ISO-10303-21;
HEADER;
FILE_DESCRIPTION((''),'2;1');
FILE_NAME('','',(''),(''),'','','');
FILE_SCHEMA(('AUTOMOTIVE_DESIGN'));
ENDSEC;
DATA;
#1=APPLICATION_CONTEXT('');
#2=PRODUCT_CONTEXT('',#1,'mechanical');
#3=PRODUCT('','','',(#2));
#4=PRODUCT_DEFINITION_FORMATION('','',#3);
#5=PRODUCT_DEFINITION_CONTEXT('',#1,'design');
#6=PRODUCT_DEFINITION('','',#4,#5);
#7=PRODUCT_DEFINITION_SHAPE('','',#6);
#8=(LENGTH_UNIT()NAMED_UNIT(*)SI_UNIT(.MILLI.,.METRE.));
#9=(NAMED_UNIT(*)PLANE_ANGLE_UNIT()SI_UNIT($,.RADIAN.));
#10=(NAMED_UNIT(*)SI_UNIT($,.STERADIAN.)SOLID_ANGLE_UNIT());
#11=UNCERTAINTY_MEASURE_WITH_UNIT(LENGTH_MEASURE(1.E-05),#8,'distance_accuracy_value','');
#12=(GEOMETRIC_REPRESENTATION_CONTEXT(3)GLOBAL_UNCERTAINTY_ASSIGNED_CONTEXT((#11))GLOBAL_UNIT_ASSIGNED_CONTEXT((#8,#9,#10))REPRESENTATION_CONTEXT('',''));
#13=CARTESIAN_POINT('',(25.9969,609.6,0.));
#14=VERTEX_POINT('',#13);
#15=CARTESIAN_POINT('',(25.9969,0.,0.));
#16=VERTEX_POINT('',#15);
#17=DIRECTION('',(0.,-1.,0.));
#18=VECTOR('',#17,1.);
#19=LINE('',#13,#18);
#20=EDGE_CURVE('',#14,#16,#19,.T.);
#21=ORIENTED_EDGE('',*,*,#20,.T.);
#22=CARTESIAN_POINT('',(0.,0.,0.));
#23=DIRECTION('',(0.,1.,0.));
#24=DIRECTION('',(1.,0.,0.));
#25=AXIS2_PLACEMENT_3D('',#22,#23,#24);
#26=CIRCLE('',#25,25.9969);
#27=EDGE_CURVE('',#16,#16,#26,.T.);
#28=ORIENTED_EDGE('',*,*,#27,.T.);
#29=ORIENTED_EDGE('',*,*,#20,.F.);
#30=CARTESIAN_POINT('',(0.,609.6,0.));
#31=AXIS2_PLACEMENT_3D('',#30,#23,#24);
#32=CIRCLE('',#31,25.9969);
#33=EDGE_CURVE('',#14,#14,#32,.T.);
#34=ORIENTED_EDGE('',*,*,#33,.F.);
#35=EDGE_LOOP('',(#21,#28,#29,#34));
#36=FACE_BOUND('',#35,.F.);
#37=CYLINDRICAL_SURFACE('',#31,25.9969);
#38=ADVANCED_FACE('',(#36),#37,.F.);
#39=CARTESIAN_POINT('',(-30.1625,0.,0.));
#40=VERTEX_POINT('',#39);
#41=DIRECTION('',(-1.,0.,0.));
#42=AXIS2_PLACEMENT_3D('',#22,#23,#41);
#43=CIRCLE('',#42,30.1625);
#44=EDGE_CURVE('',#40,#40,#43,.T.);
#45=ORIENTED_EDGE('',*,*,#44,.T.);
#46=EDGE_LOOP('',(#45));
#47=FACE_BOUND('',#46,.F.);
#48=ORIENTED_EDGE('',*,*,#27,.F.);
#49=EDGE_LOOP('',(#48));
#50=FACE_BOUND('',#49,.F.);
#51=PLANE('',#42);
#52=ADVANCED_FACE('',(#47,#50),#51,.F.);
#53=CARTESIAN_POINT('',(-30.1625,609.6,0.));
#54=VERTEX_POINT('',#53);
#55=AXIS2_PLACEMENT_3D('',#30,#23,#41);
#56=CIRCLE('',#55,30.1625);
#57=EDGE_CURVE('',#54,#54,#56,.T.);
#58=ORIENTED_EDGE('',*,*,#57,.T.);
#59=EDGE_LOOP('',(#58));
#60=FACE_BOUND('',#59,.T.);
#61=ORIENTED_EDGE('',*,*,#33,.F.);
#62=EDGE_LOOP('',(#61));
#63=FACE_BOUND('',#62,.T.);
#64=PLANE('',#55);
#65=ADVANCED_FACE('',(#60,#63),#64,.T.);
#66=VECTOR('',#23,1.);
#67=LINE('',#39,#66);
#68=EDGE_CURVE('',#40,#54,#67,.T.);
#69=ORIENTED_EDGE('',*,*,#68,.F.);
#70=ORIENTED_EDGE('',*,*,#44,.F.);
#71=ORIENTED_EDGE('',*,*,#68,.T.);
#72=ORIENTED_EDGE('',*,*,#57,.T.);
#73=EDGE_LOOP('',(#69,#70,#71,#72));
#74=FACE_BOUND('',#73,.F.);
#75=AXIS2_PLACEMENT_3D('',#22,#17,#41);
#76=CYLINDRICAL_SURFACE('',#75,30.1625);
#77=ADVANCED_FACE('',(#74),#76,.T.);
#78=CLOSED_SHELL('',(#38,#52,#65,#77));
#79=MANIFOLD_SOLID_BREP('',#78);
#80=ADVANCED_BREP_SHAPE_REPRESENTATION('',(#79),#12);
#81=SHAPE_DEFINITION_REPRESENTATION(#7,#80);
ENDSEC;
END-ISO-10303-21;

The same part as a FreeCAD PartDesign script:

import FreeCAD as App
import Part
import Sketcher
Q = App.Units.Quantity

doc = App.newDocument("Part")
body = doc.addObject("PartDesign::Body", "Body")

# Sketch on XZ plane
sketch1 = doc.addObject("Sketcher::SketchObject", "Sketch")
body.addObject(sketch1)
sketch1.AttachmentSupport = (doc.XZ_Plane, [""])
sketch1.MapMode = "FlatFace"
sketch1.addGeometry(Part.Circle(App.Vector(0, 0, 0), App.Vector(0, 0, 1), 30.1625), False)
sketch1.addConstraint(Sketcher.Constraint("Coincident", 0, 3, -1, 1))
sketch1.addConstraint(Sketcher.Constraint("Diameter", 0, Q("2.375 in")))
pad1 = doc.addObject("PartDesign::Pad", "Pad")
body.addObject(pad1)
pad1.Profile = sketch1
pad1.Length = Q("24 in")
pad1.Reversed = True

# Sketch on XZ plane
sketch2 = doc.addObject("Sketcher::SketchObject", "Sketch001")
body.addObject(sketch2)
sketch2.AttachmentSupport = (doc.XZ_Plane, [""])
sketch2.MapMode = "FlatFace"
sketch2.AttachmentOffset = App.Placement(App.Vector(0, 0, -24 * 25.4), App.Rotation())
sketch2.addGeometry(Part.Circle(App.Vector(0, 0, 0), App.Vector(0, 0, 1), 25.9969), False)
sketch2.addConstraint(Sketcher.Constraint("Coincident", 0, 3, -1, 1))
sketch2.addConstraint(Sketcher.Constraint("Diameter", 0, Q("2.047 in")))
pocket1 = doc.addObject("PartDesign::Pocket", "Pocket")
body.addObject(pocket1)
pocket1.Profile = sketch2
pocket1.Length = Q("24 in")
pocket1.Reversed = True

doc.recompute()
